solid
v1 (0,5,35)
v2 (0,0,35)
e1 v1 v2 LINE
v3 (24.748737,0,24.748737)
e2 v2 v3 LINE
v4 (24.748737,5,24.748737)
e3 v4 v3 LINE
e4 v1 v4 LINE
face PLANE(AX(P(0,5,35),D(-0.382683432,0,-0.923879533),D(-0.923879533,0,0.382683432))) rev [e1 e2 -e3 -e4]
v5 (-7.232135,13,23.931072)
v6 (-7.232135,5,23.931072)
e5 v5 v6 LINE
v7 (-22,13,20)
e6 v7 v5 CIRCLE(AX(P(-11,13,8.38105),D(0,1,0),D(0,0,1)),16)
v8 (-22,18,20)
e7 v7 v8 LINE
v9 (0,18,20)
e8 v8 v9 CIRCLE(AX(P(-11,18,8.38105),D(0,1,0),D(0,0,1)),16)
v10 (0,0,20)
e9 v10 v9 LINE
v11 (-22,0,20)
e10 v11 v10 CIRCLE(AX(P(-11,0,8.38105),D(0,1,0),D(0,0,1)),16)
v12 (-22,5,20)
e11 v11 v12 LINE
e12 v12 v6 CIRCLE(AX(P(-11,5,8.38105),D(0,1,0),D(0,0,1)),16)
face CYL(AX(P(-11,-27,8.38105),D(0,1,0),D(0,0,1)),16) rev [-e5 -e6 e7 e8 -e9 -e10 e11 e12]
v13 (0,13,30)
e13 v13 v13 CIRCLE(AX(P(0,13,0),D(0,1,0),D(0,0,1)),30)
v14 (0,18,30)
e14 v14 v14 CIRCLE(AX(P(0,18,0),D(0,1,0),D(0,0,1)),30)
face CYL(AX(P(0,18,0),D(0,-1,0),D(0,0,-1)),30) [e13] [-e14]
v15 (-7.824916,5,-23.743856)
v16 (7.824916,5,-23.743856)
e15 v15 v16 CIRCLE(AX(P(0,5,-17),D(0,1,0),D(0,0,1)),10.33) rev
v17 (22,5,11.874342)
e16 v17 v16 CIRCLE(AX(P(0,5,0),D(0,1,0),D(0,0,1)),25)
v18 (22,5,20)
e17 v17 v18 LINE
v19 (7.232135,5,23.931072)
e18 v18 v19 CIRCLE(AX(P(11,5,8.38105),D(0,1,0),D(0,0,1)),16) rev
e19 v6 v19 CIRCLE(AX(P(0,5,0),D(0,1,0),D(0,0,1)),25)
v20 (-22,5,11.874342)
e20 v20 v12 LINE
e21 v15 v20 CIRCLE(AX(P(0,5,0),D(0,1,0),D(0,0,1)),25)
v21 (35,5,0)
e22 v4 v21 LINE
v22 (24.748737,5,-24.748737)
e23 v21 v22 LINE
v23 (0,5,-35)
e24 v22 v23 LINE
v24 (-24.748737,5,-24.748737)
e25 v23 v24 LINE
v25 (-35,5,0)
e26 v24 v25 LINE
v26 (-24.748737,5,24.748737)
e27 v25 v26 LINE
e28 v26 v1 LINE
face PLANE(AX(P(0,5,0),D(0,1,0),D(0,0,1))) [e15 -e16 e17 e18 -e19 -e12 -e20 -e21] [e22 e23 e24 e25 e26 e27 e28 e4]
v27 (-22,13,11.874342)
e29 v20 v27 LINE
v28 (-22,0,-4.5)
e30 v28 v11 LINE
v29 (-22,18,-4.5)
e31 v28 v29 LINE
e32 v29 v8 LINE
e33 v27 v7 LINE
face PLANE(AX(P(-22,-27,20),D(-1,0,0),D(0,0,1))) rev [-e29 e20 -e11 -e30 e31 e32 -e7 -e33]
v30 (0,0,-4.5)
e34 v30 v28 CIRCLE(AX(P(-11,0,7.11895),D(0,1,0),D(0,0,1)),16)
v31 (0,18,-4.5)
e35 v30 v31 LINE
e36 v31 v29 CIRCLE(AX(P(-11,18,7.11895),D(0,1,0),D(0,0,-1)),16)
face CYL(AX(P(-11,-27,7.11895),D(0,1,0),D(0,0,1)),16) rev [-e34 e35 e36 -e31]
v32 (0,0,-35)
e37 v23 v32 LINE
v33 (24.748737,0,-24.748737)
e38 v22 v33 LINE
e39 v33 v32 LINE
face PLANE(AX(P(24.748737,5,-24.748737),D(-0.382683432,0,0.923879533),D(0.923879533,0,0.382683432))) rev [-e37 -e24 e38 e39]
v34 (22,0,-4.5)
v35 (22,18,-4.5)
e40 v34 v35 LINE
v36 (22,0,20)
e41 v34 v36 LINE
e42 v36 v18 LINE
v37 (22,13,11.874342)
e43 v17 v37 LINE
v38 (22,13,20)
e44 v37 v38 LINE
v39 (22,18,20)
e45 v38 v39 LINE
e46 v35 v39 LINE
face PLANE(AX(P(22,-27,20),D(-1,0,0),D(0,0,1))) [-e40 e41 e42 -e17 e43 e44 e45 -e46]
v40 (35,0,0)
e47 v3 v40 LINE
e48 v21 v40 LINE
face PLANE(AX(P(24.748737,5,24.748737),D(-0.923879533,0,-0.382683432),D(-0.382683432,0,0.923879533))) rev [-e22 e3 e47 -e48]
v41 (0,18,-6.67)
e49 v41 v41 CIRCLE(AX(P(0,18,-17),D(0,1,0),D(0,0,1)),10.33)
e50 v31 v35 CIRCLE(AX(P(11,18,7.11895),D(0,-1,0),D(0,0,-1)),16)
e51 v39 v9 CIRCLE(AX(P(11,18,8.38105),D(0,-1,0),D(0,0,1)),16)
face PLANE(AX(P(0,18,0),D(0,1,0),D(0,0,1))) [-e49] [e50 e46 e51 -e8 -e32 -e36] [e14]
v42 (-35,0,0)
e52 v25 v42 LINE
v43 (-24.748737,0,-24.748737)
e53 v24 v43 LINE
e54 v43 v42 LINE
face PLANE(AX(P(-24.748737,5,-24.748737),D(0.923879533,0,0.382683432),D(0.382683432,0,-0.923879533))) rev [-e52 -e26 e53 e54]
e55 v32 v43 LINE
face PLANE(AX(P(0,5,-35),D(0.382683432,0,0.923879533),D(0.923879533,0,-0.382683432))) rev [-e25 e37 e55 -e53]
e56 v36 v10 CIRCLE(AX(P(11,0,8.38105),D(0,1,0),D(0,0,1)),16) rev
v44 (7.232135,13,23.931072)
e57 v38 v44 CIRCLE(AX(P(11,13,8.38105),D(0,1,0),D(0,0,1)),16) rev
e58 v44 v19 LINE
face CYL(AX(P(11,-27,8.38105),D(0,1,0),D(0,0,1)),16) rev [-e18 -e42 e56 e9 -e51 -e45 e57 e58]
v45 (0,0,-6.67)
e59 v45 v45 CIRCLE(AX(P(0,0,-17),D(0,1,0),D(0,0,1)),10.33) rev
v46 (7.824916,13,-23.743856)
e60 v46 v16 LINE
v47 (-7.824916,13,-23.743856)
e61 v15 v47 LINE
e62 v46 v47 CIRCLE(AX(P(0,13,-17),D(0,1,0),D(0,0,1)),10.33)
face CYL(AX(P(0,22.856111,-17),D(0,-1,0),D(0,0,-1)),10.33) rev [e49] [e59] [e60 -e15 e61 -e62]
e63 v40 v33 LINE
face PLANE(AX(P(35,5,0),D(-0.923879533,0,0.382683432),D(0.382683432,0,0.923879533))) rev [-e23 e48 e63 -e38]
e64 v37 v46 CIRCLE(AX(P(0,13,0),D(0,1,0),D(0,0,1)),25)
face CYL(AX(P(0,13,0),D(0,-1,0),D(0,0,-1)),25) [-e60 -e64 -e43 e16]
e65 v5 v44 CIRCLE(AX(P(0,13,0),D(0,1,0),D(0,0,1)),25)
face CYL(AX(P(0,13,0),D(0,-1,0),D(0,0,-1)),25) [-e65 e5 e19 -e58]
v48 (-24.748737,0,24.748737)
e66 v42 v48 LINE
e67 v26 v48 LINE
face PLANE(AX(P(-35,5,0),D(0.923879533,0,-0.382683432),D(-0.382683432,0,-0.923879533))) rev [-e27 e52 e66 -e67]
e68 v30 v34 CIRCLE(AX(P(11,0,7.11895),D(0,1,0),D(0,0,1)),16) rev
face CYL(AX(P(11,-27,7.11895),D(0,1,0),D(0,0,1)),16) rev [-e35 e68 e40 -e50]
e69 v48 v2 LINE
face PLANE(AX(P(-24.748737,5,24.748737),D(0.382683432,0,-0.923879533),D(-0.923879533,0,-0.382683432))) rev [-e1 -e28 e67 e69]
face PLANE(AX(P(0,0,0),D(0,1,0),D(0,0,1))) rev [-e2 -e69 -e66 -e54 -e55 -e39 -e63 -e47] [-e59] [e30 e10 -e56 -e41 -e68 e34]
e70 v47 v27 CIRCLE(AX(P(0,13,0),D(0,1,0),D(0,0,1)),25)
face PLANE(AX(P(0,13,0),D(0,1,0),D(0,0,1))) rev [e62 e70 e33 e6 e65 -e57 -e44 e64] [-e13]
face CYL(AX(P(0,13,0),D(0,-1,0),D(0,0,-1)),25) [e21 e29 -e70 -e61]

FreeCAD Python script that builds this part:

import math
import FreeCAD as App
import Part
import Sketcher
from FreeCAD import Vector
Q = App.Units.Quantity


def add_polygon(sketch, points):
    """Adds a closed chain of lines whose ends are joined by coincident constraints."""
    first, n = sketch.GeometryCount, len(points)
    for a, b in zip(points, points[1:] + points[:1]):
        sketch.addGeometry(Part.LineSegment(App.Vector(*a, 0), App.Vector(*b, 0)), False)
    for i in range(n):
        sketch.addConstraint(Sketcher.Constraint("Coincident", first + i, 2, first + (i + 1) % n, 1))

doc = App.newDocument("Part")
body = doc.addObject("PartDesign::Body", "Body")

# Sketch on XZ plane
sketch1 = body.newObject("Sketcher::SketchObject", "Sketch")
sketch1.AttachmentSupport = (doc.getObject("XZ_Plane"), [""])
sketch1.MapMode = "FlatFace"
add_polygon(sketch1, [(35, 0), (25, -25), (0, -35), (-25, -25), (-35, 0), (-25, 25), (0, 35), (25, 25)])  # lines 0-7
sketch1.addConstraint([
    Sketcher.Constraint("Symmetric", 0, 2, 4, 2, -1, 1),
    Sketcher.Constraint("Symmetric", 1, 2, 5, 2, -1, 1),
    Sketcher.Constraint("Symmetric", 2, 2, 6, 2, -1, 1),
    Sketcher.Constraint("Symmetric", 3, 2, 7, 2, -1, 1),
    Sketcher.Constraint("Symmetric", 0, 2, 2, 2, -2),
    Sketcher.Constraint("PointOnObject", 1, 2, -2),
    Sketcher.Constraint("PointOnObject", 3, 2, -1),
    Sketcher.Constraint("Perpendicular", 0, 2),
    Sketcher.Constraint("Equal", 0, 1),
    Sketcher.Constraint("DistanceY", 1, 2, -1, 1, Q("35 mm")),
    Sketcher.Constraint("Angle", 0, Q("-112.5 deg")),
])
pad1 = body.newObject("PartDesign::Pad", "Pad")
pad1.Profile = sketch1
pad1.Length = 5
pad1.Reversed = True

# Sketch on XZ plane
sketch2 = body.newObject("Sketcher::SketchObject", "Sketch001")
sketch2.AttachmentSupport = (doc.getObject("XZ_Plane"), [""])
sketch2.MapMode = "FlatFace"
sketch2.AttachmentOffset = App.Placement(Vector(0, 0, -5), App.Rotation())
sketch2.addGeometry(Part.Circle(Vector(0, 0, 0), Vector(0, 0, 1), 25), False)
sketch2.addConstraint([
    Sketcher.Constraint("Coincident", 0, 3, -1, 1),
    Sketcher.Constraint("Diameter", 0, Q("50 mm")),
])
pad2 = body.newObject("PartDesign::Pad", "Pad001")
pad2.Profile = sketch2
pad2.Length = 8
pad2.Reversed = True

# Sketch on XZ plane
sketch3 = body.newObject("Sketcher::SketchObject", "Sketch002")
sketch3.AttachmentSupport = (doc.getObject("XZ_Plane"), [""])
sketch3.MapMode = "FlatFace"
sketch3.AttachmentOffset = App.Placement(Vector(0, 0, -13), App.Rotation())
sketch3.addGeometry(Part.Circle(Vector(0, -17, 0), Vector(0, 0, 1), 10), False)
sketch3.addConstraint([
    Sketcher.Constraint("PointOnObject", 0, 3, -2),
    Sketcher.Constraint("Diameter", 0, Q("20.66 mm")),
    Sketcher.Constraint("DistanceY", 0, 3, -1, 1, Q("17 mm")),
])
pocket1 = body.newObject("PartDesign::Pocket", "Pocket")
pocket1.Profile = sketch3
pocket1.Type = "ThroughAll"
pocket1.Midplane = True

# Sketch on XZ plane
sketch4 = body.newObject("Sketcher::SketchObject", "Sketch003")
sketch4.AttachmentSupport = (doc.getObject("XZ_Plane"), [""])
sketch4.MapMode = "FlatFace"
sketch4.AttachmentOffset = App.Placement(Vector(0, 0, -13), App.Rotation())
sketch4.addGeometry(Part.Circle(Vector(0, 0, 0), Vector(0, 0, 1), 30), False)
sketch4.addConstraint([
    Sketcher.Constraint("Coincident", 0, 3, -1, 1),
    Sketcher.Constraint("Diameter", 0, Q("60 mm")),
])
pad3 = body.newObject("PartDesign::Pad", "Pad002")
pad3.Profile = sketch4
pad3.Length = 5
pad3.Reversed = True

# Sketch on XZ plane
sketch5 = body.newObject("Sketcher::SketchObject", "Sketch004")
sketch5.AttachmentSupport = (doc.getObject("XZ_Plane"), [""])
sketch5.MapMode = "FlatFace"
sketch5.AttachmentOffset = App.Placement(Vector(0, 0, -18), App.Rotation())
sketch5.addGeometry(Part.Circle(Vector(0, -17, 0), Vector(0, 0, 1), 10), False)
sketch5.addConstraint([
    Sketcher.Constraint("PointOnObject", 0, 3, -2),
    Sketcher.Constraint("Diameter", 0, Q("20.66 mm")),
    Sketcher.Constraint("DistanceY", 0, 3, -1, 1, Q("17 mm")),
])
pocket2 = body.newObject("PartDesign::Pocket", "Pocket001")
pocket2.Profile = sketch5
pocket2.Length = 5
pocket2.Reversed = True

# Sketch on XZ plane
sketch6 = body.newObject("Sketcher::SketchObject", "Sketch005")
sketch6.AttachmentSupport = (doc.getObject("XZ_Plane"), [""])
sketch6.MapMode = "FlatFace"
sketch6.AttachmentOffset = App.Placement(Vector(0, 0, -18), App.Rotation())
sketch6.addGeometry([
    Part.LineSegment(Vector(0, 20, 0), Vector(0, -4, 0)),
    Part.ArcOfCircle(Part.Circle(Vector(-11, 7, 0), Vector(0, 0, 1), 16), math.radians(-133), math.radians(-47)),
    Part.LineSegment(Vector(-22, -4, 0), Vector(-22, 20, 0)),
    Part.ArcOfCircle(Part.Circle(Vector(-11, 8, 0), Vector(0, 0, 1), 16), math.radians(47), math.radians(133)),
], False)
sketch6.addConstraint([
    Sketcher.Constraint("Coincident", 0, 2, 1, 2),
    Sketcher.Constraint("Coincident", 1, 1, 2, 1),
    Sketcher.Constraint("Coincident", 2, 2, 3, 2),
    Sketcher.Constraint("Coincident", 3, 1, 0, 1),
    Sketcher.Constraint("Vertical", 0),
    Sketcher.Constraint("Vertical", 2),
    Sketcher.Constraint("Equal", 1, 3),
    Sketcher.Constraint("PointOnObject", 0, 2, -2),
    Sketcher.Constraint("Horizontal", 0, 2, 1, 1),
    Sketcher.Constraint("Horizontal", 2, 2, 3, 1),
    Sketcher.Constraint("Radius", 1, Q("16 mm")),
    Sketcher.Constraint("DistanceY", 0, 2, 0, 1, Q("24.5 mm")),
    Sketcher.Constraint("DistanceX", 1, 3, -1, 1, Q("11 mm")),
    Sketcher.Constraint("DistanceY", -1, 1, 2, 2, Q("20 mm")),
])
pocket3 = body.newObject("PartDesign::Pocket", "Pocket002")
pocket3.Profile = sketch6
pocket3.Length = 45
pocket3.Reversed = True
doc.recompute()

mirrored = body.newObject("PartDesign::Mirrored", "Mirrored")
mirrored.Originals = [pocket3]
mirrored.MirrorPlane = (doc.getObject("YZ_Plane"), [""])
body.Tip = mirrored

doc.recompute()
